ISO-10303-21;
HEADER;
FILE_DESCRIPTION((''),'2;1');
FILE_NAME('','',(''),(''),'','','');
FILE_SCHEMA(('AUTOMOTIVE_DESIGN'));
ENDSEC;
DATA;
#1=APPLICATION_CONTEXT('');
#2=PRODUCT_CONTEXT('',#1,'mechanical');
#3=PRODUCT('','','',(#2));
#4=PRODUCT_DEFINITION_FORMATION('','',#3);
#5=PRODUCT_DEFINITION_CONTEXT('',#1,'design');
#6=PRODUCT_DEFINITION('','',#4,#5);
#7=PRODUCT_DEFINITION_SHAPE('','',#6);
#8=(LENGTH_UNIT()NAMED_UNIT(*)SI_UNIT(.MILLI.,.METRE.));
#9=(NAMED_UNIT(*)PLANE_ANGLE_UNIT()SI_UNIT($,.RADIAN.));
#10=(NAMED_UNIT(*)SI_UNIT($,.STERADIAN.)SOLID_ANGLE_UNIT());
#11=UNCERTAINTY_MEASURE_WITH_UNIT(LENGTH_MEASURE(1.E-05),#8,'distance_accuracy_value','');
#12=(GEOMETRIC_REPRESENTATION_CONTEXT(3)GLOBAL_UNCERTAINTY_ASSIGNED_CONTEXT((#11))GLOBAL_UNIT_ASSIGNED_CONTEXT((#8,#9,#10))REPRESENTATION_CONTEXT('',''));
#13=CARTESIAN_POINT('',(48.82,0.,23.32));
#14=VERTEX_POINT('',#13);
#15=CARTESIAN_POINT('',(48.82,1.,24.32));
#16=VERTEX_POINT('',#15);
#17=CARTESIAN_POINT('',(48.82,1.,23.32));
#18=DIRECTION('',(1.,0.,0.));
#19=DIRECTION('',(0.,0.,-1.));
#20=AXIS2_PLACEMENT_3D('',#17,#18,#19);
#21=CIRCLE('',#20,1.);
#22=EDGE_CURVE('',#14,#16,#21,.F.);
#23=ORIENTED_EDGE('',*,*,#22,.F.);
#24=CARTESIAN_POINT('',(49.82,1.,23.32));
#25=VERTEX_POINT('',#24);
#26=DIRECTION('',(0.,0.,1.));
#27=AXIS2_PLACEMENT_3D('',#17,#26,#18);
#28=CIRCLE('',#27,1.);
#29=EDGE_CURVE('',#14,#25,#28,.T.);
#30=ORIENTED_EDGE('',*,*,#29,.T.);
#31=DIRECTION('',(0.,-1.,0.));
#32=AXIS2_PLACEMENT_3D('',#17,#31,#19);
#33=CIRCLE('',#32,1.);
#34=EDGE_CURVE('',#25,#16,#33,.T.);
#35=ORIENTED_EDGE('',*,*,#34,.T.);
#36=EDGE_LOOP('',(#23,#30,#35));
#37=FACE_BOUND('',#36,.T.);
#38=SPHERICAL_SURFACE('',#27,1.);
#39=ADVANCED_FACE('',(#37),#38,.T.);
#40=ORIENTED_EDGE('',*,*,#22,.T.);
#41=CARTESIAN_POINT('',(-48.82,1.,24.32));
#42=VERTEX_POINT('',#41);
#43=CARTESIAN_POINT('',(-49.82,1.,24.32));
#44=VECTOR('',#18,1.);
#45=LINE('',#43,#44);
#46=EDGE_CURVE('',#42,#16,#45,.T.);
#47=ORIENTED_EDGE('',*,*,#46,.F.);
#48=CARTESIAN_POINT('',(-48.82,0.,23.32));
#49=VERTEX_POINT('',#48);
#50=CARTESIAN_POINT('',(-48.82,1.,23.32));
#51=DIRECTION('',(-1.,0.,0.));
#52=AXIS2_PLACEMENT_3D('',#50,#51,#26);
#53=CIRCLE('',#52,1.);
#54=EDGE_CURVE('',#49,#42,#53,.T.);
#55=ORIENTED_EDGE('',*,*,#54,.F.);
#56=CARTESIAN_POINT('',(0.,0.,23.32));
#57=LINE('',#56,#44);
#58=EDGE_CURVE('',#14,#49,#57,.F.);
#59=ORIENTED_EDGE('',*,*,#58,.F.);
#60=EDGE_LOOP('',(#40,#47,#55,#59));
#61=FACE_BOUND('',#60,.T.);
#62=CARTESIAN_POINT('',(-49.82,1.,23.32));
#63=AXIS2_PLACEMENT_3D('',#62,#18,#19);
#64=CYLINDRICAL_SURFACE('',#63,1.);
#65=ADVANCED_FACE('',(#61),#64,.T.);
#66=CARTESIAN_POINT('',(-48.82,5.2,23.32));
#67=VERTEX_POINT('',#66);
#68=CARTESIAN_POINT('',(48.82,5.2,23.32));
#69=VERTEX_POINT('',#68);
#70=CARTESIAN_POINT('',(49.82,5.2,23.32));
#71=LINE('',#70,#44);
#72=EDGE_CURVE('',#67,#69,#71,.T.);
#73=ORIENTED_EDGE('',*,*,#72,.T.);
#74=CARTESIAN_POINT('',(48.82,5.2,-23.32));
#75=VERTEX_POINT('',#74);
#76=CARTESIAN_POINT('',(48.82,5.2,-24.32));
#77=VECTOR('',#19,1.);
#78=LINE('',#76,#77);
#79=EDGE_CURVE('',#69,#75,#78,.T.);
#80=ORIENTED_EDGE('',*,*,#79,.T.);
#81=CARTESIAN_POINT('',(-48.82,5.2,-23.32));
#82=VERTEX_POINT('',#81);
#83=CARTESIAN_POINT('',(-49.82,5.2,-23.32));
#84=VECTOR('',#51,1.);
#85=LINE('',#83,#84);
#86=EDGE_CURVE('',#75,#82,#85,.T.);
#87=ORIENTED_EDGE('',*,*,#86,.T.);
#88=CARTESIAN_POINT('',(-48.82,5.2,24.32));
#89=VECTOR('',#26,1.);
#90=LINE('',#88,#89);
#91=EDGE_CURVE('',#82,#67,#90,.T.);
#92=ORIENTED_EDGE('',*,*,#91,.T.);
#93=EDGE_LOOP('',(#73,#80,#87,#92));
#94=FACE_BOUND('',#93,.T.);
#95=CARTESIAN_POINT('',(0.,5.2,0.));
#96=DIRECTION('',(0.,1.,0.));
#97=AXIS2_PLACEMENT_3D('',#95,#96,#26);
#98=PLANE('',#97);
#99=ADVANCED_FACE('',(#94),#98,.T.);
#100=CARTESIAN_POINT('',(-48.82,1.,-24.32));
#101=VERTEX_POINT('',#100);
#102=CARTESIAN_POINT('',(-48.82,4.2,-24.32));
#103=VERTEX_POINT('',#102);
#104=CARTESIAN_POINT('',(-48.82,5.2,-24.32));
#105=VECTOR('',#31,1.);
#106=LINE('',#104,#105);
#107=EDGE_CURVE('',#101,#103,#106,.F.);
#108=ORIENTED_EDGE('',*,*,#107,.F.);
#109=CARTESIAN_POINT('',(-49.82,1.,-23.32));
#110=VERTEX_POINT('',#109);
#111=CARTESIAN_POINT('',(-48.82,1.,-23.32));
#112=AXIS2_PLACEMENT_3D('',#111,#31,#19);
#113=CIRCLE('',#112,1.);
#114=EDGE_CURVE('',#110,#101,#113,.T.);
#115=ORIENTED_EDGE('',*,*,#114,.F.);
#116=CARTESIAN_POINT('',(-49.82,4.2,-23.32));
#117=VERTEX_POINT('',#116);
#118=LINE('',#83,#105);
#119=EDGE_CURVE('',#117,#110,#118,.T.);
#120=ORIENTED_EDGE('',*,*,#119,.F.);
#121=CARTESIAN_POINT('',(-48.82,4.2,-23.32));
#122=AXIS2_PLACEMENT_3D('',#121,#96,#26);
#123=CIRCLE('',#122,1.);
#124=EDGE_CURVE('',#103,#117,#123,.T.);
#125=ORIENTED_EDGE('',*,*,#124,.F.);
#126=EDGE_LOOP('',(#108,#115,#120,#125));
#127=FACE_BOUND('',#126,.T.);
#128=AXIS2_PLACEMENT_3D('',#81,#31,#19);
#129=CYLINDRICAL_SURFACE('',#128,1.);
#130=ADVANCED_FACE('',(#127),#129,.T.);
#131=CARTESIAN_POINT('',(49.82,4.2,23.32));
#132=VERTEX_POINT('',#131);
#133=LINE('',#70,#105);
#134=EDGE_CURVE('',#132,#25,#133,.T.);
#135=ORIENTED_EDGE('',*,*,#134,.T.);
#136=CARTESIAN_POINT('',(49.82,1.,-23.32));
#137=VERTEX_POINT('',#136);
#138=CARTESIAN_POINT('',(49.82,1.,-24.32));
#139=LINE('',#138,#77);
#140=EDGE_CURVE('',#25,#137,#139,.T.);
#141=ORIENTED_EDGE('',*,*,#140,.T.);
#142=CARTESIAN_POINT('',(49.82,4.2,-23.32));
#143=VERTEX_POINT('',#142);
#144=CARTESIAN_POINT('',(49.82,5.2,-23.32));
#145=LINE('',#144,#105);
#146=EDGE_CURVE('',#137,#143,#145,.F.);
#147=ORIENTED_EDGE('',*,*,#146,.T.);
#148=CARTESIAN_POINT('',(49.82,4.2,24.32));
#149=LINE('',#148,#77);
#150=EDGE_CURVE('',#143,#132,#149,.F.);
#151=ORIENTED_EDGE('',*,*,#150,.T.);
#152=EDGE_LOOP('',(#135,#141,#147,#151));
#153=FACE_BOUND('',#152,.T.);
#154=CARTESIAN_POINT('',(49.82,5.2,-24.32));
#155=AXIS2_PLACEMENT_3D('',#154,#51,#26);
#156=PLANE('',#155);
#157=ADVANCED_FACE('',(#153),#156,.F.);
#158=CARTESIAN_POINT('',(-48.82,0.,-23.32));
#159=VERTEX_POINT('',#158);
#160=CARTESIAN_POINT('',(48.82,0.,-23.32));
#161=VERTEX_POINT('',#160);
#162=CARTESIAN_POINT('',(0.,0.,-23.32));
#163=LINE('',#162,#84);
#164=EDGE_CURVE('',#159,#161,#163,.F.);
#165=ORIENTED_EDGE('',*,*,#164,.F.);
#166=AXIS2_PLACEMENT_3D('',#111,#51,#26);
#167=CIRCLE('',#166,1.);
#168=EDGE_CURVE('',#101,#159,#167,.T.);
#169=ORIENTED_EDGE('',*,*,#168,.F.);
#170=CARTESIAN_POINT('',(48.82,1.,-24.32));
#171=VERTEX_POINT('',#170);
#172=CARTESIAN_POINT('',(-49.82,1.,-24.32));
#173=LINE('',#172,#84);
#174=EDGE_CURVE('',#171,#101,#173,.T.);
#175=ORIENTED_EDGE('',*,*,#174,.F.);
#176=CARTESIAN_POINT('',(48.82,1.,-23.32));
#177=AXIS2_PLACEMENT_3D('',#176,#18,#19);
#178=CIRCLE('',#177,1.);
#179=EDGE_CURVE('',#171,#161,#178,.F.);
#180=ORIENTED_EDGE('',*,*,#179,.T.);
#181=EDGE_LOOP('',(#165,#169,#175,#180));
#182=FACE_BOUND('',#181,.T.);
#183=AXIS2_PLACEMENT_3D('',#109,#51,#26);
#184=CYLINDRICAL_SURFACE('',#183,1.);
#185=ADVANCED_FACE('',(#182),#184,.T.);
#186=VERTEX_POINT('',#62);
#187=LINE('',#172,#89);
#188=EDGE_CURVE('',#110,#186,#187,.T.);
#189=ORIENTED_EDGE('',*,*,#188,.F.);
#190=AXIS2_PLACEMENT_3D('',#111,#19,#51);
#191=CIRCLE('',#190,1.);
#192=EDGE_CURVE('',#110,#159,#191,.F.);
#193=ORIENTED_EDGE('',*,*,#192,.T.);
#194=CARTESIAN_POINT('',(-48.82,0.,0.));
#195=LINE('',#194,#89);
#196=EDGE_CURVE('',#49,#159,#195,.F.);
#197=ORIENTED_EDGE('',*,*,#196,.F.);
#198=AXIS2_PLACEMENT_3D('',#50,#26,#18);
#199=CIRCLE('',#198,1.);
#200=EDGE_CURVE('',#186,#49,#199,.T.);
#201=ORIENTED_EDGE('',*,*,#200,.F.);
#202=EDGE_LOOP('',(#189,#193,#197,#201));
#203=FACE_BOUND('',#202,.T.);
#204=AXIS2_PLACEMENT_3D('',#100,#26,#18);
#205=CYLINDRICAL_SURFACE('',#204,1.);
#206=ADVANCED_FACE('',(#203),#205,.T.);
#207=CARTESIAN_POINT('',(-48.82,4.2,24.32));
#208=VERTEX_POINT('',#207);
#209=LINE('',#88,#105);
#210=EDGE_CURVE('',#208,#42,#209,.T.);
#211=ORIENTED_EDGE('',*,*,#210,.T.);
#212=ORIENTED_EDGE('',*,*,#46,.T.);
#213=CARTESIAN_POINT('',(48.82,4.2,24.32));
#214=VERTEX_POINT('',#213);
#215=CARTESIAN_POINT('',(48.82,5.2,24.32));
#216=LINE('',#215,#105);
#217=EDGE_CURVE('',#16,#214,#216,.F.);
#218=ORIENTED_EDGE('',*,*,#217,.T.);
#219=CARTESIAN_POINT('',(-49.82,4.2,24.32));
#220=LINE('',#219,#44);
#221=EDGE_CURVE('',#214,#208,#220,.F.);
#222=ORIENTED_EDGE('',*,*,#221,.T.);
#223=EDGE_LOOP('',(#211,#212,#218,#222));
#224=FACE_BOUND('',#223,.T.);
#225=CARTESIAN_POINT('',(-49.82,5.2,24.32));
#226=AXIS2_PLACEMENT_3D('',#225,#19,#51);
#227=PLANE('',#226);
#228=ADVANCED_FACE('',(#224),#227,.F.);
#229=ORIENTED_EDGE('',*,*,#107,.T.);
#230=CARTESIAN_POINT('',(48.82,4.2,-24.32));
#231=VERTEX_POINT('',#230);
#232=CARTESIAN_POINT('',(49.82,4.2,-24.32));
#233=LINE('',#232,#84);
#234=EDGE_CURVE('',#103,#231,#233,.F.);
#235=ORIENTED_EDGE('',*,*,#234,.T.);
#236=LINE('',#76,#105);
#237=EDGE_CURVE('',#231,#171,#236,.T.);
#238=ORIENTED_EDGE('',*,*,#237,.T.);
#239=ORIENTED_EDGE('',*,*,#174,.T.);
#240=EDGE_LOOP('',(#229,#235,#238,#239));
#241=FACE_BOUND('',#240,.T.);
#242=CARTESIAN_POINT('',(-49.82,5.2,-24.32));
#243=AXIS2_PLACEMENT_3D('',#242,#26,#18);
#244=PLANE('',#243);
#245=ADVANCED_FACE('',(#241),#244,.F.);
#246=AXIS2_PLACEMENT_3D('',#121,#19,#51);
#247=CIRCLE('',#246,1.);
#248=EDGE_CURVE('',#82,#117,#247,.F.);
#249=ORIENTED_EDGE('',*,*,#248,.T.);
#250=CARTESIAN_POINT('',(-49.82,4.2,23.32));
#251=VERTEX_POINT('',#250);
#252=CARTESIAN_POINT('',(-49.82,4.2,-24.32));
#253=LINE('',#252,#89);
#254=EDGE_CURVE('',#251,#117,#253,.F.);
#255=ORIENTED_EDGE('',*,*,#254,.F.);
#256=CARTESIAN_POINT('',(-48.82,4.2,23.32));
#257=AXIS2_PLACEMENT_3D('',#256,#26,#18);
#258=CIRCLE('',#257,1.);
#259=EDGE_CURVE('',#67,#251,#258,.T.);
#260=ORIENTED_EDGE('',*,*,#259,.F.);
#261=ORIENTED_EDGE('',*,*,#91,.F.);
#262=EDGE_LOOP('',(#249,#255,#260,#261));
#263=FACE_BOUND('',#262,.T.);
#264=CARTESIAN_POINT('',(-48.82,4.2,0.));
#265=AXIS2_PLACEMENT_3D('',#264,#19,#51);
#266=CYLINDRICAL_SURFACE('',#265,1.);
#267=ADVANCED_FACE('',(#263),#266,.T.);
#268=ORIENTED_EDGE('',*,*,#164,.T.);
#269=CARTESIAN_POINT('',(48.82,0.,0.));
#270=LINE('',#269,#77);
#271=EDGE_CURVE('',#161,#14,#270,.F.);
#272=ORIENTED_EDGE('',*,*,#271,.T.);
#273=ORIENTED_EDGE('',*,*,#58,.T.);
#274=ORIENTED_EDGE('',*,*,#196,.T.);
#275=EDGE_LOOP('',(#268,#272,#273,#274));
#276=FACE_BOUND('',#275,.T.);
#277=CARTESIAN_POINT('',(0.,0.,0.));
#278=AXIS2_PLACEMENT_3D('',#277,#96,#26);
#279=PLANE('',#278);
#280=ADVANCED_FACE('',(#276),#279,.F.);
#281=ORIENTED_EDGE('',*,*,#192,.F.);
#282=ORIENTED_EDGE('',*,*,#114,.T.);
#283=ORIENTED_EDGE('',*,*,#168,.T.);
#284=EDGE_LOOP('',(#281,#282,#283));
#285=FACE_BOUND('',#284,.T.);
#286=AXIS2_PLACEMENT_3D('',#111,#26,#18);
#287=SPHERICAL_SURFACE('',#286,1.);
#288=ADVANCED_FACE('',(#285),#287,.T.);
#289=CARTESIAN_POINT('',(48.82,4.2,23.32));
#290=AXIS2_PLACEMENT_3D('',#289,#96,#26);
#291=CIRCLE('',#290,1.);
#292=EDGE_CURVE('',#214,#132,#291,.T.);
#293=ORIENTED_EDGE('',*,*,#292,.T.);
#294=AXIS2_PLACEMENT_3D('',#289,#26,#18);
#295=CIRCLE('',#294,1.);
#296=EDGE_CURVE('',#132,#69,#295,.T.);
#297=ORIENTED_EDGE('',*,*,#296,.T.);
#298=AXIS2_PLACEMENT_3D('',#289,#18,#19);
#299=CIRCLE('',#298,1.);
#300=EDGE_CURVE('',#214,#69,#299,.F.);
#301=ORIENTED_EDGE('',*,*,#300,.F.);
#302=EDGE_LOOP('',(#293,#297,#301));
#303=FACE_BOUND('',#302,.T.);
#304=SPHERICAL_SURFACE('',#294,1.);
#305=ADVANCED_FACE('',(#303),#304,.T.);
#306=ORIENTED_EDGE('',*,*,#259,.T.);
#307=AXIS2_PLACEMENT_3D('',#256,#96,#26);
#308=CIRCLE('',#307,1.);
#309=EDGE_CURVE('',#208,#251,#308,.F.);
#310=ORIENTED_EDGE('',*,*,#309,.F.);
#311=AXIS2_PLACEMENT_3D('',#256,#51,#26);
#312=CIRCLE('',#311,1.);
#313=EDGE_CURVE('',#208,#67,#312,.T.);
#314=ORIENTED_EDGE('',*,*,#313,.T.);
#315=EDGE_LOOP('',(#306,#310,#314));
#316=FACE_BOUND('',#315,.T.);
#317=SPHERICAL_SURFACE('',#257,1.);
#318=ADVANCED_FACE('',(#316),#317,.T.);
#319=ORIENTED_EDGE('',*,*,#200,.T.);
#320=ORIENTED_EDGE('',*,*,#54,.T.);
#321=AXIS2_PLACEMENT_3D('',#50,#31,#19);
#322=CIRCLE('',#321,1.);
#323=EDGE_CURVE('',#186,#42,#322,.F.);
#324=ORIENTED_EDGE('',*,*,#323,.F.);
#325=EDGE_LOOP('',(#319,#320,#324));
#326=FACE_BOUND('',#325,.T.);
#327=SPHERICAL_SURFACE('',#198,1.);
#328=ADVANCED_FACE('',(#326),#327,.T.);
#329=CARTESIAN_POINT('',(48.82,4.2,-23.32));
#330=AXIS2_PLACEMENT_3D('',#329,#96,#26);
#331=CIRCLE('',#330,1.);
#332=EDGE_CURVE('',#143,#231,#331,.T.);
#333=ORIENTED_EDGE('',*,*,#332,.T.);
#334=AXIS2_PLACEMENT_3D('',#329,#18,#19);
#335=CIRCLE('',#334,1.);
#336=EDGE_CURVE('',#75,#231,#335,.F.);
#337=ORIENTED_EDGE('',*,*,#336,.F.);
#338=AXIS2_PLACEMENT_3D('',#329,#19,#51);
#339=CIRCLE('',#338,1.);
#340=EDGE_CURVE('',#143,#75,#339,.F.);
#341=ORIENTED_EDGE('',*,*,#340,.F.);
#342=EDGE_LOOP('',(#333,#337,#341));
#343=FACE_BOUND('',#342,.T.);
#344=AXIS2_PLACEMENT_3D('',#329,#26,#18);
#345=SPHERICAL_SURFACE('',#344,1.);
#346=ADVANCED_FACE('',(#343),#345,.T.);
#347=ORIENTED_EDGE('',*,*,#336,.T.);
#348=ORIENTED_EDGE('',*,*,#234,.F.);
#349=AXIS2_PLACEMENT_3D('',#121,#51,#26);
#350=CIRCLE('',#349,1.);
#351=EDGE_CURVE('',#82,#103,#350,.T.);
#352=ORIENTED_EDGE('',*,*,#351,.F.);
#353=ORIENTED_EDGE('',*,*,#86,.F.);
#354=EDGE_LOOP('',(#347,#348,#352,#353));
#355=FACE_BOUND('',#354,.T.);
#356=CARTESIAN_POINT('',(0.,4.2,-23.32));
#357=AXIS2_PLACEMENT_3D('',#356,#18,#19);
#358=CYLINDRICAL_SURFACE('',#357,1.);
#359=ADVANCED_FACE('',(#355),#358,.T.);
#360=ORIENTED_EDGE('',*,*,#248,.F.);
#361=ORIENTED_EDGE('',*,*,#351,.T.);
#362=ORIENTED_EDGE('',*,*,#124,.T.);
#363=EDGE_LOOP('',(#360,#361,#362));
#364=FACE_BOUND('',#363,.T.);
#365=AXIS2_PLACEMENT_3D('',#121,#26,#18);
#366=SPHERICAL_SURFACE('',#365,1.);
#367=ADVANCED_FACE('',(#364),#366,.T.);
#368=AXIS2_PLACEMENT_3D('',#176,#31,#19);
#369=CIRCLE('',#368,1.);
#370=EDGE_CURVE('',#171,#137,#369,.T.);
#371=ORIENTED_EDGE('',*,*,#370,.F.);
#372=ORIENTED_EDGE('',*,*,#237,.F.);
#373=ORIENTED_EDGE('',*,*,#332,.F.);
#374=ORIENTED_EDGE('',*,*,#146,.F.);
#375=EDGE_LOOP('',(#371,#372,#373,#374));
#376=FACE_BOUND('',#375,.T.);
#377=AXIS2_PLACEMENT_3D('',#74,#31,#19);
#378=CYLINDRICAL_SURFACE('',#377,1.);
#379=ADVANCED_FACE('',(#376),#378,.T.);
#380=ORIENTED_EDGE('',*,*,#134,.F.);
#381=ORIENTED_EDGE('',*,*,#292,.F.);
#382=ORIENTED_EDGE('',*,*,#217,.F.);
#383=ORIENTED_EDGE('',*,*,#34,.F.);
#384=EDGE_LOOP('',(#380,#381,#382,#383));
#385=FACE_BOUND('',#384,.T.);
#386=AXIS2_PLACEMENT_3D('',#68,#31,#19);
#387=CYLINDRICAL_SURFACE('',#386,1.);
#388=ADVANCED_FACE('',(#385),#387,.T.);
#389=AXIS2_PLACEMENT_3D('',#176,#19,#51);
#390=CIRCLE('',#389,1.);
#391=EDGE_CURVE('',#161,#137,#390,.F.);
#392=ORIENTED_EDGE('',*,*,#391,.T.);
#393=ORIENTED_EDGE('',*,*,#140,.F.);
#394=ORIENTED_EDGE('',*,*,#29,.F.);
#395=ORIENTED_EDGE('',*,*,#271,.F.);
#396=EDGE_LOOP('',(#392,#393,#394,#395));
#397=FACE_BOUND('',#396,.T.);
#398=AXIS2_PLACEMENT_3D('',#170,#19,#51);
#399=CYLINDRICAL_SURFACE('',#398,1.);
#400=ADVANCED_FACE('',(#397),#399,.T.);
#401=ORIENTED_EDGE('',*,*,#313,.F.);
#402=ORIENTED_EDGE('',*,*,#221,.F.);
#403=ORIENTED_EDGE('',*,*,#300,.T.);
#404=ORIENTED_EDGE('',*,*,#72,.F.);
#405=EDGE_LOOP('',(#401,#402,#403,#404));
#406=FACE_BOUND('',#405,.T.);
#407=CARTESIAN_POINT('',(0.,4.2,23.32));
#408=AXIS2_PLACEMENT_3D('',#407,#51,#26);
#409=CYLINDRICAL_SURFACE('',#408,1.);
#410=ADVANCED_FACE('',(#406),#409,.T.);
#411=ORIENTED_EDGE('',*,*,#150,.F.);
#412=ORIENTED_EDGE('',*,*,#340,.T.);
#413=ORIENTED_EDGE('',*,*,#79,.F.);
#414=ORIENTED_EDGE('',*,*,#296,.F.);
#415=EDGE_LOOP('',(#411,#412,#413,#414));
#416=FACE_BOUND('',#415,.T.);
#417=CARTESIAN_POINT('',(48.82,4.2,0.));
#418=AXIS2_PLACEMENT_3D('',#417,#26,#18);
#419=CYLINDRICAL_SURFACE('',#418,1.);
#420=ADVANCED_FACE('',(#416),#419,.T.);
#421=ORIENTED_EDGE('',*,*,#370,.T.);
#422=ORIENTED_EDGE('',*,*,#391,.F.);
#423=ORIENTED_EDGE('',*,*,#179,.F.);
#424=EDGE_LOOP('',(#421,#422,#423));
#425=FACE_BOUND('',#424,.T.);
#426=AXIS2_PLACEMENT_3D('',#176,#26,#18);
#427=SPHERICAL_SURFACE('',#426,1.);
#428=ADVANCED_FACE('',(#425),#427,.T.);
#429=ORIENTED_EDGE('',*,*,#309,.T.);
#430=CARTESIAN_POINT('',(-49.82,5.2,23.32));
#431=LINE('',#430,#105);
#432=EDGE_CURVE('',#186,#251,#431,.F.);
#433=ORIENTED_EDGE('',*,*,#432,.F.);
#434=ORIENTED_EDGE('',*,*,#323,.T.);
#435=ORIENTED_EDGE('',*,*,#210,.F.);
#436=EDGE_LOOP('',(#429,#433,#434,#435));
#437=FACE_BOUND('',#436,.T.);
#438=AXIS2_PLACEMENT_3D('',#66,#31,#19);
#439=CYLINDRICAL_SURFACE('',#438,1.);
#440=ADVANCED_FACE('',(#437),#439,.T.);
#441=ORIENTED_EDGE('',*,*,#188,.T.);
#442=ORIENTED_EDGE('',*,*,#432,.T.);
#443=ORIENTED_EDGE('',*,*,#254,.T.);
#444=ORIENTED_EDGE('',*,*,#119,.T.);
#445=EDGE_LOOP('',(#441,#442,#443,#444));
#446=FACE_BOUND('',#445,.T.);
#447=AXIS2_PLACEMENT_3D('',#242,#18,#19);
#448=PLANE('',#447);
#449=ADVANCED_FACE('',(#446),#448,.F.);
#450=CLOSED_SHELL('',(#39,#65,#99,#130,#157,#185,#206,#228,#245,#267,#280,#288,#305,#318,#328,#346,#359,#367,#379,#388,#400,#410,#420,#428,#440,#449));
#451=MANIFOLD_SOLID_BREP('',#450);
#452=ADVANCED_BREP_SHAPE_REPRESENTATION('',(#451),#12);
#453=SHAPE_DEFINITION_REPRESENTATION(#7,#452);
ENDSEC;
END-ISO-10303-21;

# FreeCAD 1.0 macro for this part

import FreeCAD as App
import Part
import Sketcher
Q = App.Units.Quantity

doc = App.newDocument("Part")
params = doc.addObject("Spreadsheet::Sheet", "Params")
for row, (alias, value) in enumerate([
    ("sketch1_width", "99.64 mm"),
    ("sketch1_height", "48.64 mm"),
    ("pad1_length", "5.2 mm"),
    ("fillet_radius", "1 mm"),
], start=1):
    params.set(f"A{row}", alias)
    params.set(f"B{row}", "=" + value)
    params.setAlias(f"B{row}", alias)

body = doc.addObject("PartDesign::Body", "Body")

# Sketch on XZ plane
sketch1 = body.newObject("Sketcher::SketchObject", "Sketch")
sketch1.AttachmentSupport = (doc.getObject("XZ_Plane"), [""])
sketch1.MapMode = "FlatFace"
sketch1.addGeometry([
    Part.LineSegment(App.Vector(-50, -24, 0), App.Vector(-50, 24, 0)),
    Part.LineSegment(App.Vector(-50, 24, 0), App.Vector(50, 24, 0)),
    Part.LineSegment(App.Vector(50, 24, 0), App.Vector(50, -24, 0)),
    Part.LineSegment(App.Vector(50, -24, 0), App.Vector(-50, -24, 0)),
], False)
sketch1.addConstraint([
    Sketcher.Constraint("Coincident", 0, 2, 1, 1),
    Sketcher.Constraint("Coincident", 1, 2, 2, 1),
    Sketcher.Constraint("Coincident", 2, 2, 3, 1),
    Sketcher.Constraint("Coincident", 3, 2, 0, 1),
    Sketcher.Constraint("Vertical", 0),
    Sketcher.Constraint("Horizontal", 1),
    Sketcher.Constraint("Vertical", 2),
    Sketcher.Constraint("Horizontal", 3),
    Sketcher.Constraint("Symmetric", 0, 2, 2, 2, -1, 1),
    Sketcher.Constraint("DistanceX", 1, 1, 1, 2, Q("99.64 mm")),
    Sketcher.Constraint("DistanceY", 0, 1, 0, 2, Q("48.64 mm")),
])
sketch1.setExpression("Constraints[9]", "Params.sketch1_width")
sketch1.setExpression("Constraints[10]", "Params.sketch1_height")
pad1 = body.newObject("PartDesign::Pad", "Pad")
pad1.Profile = sketch1
pad1.setExpression("Length", "Params.pad1_length")
pad1.Reversed = True
doc.recompute()

fillet = body.newObject("PartDesign::Fillet", "Fillet")
fillet.Base = (pad1, ["Edge1"])
fillet.UseAllEdges = True
fillet.setExpression("Radius", "Params.fillet_radius")

doc.recompute()
